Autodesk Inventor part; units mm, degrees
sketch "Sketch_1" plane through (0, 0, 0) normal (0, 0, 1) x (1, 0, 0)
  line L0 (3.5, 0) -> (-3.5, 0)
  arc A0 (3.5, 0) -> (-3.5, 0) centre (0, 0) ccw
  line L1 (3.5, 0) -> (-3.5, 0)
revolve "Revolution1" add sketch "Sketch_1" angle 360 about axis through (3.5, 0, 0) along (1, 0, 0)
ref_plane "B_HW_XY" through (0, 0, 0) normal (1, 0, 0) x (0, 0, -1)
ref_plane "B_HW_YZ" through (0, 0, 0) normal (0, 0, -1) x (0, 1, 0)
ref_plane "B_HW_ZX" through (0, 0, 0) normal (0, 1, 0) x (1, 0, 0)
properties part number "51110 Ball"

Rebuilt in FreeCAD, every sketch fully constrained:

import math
import FreeCAD as App
import Part
import Sketcher
from FreeCAD import Vector
Q = App.Units.Quantity

doc = App.newDocument("Part")
body = doc.addObject("PartDesign::Body", "Body")

# Sketch on XY plane
sketch1 = body.newObject("Sketcher::SketchObject", "Sketch")
sketch1.AttachmentSupport = (doc.getObject("XY_Plane"), [""])
sketch1.MapMode = "FlatFace"
sketch1.addGeometry(Part.LineSegment(Vector(-3.5, 0, 0), Vector(3.5, 0, 0)), False)
sketch1.addGeometry(Part.ArcOfCircle(Part.Circle(Vector(0, 0, 0), Vector(0, 0, 1), 3.5), math.radians(0), math.radians(180)), False)
sketch1.addConstraint(Sketcher.Constraint("Coincident", 0, 1, 1, 2))
sketch1.addConstraint(Sketcher.Constraint("Coincident", 1, 1, 0, 2))
sketch1.addConstraint(Sketcher.Constraint("Horizontal", 0))
sketch1.addConstraint(Sketcher.Constraint("Coincident", 1, 3, -1, 1))
sketch1.addConstraint(Sketcher.Constraint("PointOnObject", 0, 1, -1))
sketch1.addConstraint(Sketcher.Constraint("Radius", 1, Q("3.5 mm")))
revolution = body.newObject("PartDesign::Revolution", "Revolution")
revolution.Profile = sketch1
revolution.ReferenceAxis = (sketch1, ["H_Axis"])
revolution.Angle = 360

doc.recompute()
